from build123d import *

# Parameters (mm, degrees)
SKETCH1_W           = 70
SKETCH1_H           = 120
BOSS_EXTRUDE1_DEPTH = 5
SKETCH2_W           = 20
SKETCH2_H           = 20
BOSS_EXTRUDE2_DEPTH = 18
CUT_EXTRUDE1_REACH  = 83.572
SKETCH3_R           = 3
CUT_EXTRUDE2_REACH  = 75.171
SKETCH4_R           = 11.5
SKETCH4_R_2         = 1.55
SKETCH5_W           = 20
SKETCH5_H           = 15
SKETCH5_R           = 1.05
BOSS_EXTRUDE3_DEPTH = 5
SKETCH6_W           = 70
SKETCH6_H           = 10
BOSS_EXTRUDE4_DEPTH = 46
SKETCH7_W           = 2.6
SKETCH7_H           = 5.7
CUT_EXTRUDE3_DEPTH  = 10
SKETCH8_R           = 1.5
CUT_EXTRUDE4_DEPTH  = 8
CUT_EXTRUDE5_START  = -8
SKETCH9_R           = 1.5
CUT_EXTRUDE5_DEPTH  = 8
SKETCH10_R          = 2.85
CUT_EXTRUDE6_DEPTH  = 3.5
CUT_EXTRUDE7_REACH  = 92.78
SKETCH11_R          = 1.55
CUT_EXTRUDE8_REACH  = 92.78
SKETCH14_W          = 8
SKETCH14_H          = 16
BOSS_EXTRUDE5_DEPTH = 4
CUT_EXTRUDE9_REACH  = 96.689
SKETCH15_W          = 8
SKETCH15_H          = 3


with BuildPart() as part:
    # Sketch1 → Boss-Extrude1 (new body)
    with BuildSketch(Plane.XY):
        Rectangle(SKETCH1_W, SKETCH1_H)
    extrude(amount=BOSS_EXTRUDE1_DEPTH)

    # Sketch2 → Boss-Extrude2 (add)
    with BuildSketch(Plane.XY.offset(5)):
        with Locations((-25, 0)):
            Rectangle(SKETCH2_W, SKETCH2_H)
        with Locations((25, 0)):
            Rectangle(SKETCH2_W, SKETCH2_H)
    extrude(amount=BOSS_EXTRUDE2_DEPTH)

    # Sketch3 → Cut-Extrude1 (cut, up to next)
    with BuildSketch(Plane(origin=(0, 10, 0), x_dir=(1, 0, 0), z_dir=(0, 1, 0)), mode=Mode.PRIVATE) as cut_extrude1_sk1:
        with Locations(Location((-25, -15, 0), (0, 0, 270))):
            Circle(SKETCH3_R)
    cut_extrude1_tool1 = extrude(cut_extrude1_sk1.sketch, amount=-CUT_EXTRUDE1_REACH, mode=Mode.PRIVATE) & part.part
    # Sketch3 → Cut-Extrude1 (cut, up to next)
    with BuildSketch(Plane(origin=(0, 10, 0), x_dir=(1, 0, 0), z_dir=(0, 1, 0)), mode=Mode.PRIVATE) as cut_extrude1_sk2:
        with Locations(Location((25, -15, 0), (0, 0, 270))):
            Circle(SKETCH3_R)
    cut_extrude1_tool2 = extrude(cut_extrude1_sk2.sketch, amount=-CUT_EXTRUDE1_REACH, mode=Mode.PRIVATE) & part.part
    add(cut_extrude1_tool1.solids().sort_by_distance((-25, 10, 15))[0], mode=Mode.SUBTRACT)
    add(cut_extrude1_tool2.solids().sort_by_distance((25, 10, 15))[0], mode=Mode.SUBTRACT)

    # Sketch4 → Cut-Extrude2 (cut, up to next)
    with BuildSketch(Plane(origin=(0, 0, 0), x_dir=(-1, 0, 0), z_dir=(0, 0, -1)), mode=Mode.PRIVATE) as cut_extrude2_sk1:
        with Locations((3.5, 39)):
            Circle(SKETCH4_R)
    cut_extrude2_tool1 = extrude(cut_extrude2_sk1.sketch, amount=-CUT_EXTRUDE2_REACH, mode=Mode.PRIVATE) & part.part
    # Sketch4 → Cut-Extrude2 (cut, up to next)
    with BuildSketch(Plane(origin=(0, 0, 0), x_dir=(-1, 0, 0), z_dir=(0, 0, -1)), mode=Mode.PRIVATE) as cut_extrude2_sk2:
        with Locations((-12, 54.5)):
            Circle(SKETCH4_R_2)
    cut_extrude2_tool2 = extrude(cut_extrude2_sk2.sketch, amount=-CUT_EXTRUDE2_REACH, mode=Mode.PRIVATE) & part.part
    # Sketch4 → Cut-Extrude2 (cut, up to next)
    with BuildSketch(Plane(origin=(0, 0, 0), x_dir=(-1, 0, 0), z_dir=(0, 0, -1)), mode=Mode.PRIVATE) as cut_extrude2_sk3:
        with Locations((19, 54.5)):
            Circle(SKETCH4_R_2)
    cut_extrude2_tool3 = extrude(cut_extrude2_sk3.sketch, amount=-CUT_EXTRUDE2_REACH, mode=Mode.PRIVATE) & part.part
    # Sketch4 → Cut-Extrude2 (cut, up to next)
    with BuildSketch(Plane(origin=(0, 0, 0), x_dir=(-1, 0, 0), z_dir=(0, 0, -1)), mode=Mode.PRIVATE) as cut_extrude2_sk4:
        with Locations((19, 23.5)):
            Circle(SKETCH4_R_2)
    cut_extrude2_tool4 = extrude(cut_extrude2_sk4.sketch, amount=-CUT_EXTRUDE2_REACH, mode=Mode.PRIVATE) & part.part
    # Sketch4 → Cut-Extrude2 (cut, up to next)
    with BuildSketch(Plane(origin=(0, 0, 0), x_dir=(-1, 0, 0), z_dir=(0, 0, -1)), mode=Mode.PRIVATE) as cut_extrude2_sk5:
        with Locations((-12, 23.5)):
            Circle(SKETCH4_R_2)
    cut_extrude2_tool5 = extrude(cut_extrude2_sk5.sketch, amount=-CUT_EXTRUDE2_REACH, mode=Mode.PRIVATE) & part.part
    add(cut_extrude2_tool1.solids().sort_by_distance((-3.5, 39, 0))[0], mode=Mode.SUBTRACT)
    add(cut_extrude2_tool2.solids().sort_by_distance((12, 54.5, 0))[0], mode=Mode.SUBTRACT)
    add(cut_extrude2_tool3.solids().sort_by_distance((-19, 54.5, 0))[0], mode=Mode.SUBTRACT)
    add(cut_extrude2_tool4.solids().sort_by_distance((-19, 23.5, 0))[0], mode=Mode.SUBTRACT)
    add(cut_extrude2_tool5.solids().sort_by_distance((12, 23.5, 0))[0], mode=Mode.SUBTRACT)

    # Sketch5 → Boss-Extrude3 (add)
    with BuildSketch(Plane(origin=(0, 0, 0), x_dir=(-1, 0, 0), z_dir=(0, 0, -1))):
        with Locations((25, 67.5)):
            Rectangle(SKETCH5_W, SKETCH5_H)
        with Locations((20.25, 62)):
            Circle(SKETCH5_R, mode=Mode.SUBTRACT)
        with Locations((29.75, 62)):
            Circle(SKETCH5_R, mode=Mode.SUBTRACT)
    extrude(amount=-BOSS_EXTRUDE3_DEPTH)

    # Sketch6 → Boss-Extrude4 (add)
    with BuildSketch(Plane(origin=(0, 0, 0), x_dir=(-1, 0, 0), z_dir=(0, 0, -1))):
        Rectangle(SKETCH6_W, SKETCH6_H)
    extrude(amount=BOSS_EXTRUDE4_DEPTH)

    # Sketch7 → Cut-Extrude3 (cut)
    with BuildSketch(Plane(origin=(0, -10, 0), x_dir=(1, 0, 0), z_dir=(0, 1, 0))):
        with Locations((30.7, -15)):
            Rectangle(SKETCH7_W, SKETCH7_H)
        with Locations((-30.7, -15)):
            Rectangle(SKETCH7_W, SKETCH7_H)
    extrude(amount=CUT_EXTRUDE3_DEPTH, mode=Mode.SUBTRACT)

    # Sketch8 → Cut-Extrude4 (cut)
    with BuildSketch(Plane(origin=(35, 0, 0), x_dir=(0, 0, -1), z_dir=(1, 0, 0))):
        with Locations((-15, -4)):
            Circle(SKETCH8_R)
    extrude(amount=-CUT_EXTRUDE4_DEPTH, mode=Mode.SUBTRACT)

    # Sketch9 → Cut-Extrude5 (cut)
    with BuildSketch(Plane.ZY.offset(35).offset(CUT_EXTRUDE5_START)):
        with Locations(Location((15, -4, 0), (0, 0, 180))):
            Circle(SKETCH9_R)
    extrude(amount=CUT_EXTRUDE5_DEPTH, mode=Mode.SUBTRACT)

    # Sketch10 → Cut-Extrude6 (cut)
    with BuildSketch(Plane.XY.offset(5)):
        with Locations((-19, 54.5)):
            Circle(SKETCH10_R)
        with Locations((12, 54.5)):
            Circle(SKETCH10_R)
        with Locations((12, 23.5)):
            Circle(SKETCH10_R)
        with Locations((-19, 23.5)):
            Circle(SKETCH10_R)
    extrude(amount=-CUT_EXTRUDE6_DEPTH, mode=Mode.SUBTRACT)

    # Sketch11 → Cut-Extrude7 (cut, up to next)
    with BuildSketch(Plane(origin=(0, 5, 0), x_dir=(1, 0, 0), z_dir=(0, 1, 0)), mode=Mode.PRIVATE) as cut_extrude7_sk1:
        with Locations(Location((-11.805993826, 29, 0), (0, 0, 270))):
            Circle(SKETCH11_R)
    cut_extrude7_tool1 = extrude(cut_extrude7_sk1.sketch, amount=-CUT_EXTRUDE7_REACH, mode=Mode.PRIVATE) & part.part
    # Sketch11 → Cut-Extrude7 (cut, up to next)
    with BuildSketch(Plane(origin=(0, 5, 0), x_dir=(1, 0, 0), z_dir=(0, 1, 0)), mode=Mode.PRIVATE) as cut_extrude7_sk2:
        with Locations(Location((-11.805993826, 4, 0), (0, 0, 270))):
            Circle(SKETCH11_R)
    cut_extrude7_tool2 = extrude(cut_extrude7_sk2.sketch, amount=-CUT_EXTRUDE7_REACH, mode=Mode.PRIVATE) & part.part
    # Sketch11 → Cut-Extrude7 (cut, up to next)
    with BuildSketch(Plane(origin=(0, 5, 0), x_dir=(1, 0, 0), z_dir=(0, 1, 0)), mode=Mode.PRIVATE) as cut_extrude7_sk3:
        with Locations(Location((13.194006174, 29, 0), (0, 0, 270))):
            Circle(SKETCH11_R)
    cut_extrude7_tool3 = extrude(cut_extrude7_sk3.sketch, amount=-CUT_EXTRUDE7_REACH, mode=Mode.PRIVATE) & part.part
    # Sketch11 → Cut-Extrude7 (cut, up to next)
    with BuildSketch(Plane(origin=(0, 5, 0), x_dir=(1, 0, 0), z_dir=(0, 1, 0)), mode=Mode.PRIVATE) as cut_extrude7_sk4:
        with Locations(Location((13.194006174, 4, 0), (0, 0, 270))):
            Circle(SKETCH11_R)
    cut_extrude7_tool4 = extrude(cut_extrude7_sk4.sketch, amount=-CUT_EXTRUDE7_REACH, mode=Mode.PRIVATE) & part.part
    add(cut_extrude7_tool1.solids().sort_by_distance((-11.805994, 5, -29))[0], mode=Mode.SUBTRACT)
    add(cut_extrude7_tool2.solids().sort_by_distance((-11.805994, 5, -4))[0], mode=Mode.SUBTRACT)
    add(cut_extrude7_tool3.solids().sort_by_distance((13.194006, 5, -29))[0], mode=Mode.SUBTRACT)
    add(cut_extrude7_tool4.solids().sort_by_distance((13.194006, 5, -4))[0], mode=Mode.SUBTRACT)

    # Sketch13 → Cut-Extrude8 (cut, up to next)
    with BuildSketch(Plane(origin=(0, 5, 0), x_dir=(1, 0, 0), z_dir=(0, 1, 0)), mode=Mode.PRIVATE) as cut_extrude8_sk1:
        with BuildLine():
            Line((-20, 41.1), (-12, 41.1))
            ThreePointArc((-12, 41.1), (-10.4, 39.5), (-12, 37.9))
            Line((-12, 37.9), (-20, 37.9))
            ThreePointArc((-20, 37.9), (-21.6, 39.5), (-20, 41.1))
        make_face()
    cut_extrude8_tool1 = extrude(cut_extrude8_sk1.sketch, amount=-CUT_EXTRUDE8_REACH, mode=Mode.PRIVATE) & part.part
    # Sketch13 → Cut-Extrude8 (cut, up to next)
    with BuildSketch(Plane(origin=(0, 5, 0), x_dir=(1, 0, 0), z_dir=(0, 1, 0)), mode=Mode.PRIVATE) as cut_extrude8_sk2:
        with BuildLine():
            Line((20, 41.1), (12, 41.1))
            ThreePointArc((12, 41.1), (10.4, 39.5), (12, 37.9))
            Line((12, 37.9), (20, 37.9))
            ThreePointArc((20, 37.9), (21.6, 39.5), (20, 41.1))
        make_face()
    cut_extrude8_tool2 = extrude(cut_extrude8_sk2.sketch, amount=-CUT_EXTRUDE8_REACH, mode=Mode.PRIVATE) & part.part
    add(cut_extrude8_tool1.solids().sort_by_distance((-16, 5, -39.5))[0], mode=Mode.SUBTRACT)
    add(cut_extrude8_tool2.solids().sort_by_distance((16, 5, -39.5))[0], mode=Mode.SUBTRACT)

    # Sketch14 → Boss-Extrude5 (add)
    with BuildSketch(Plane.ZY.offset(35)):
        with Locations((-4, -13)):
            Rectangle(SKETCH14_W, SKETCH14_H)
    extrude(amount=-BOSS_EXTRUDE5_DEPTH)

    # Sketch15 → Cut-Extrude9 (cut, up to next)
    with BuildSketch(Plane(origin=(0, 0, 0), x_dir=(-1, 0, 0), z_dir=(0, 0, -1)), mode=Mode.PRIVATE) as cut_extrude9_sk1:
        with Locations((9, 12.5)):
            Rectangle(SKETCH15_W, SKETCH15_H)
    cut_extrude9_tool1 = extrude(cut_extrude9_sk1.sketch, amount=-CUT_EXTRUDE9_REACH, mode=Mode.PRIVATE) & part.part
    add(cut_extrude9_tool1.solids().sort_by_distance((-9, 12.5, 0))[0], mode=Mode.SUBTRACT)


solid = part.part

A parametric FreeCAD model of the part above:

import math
import FreeCAD as App
import Part
import Sketcher


def add_polygon(sketch, points):
    """Adds a closed chain of lines whose ends are joined by coincident constraints."""
    first, n = sketch.GeometryCount, len(points)
    for a, b in zip(points, points[1:] + points[:1]):
        sketch.addGeometry(Part.LineSegment(App.Vector(*a, 0), App.Vector(*b, 0)), False)
    for i in range(n):
        sketch.addConstraint(Sketcher.Constraint("Coincident", first + i, 2, first + (i + 1) % n, 1))

doc = App.newDocument("Part")
body = doc.addObject("PartDesign::Body", "Body")

sketch1 = body.newObject("Sketcher::SketchObject", "Sketch")
sketch1.AttachmentSupport = (doc.getObject("XY_Plane"), [""])
sketch1.MapMode = "FlatFace"
add_polygon(sketch1, [(-35, 60), (-35, -60), (35, -60), (35, 60)])
sketch1.addConstraint([
    Sketcher.Constraint("Vertical", 0),
    Sketcher.Constraint("Horizontal", 1),
    Sketcher.Constraint("Vertical", 2),
    Sketcher.Constraint("Horizontal", 3),
    Sketcher.Constraint("Symmetric", 0, 2, 2, 2, -1, 1),
    Sketcher.Constraint("DistanceX", 1, 1, 1, 2, 70.0),
    Sketcher.Constraint("DistanceY", 0, 2, 0, 1, 120.0),
])
pad1 = body.newObject("PartDesign::Pad", "Pad")
pad1.Profile = sketch1
pad1.Length = 5

sketch2 = body.newObject("Sketcher::SketchObject", "Sketch001")
sketch2.AttachmentSupport = (doc.getObject("XY_Plane"), [""])
sketch2.MapMode = "FlatFace"
sketch2.AttachmentOffset = App.Placement(App.Vector(0, 0, 5), App.Rotation())
add_polygon(sketch2, [(-35, 10), (-35, -10), (-15, -10), (-15, 10)])
add_polygon(sketch2, [(15, 10), (15, -10), (35, -10), (35, 10)])
sketch2.addConstraint([
    Sketcher.Constraint("Vertical", 0),
    Sketcher.Constraint("Horizontal", 1),
    Sketcher.Constraint("Vertical", 2),
    Sketcher.Constraint("Horizontal", 3),
    Sketcher.Constraint("Vertical", 4),
    Sketcher.Constraint("Horizontal", 5),
    Sketcher.Constraint("Vertical", 6),
    Sketcher.Constraint("Horizontal", 7),
    Sketcher.Constraint("Symmetric", 2, 2, 4, 2, -1, 1),
    Sketcher.Constraint("Symmetric", 0, 2, 6, 2, -1, 1),
    Sketcher.Constraint("Horizontal", 1, 2, 4, 2),
    Sketcher.Constraint("Equal", 7, 0),
    Sketcher.Constraint("DistanceX", 1, 1, 1, 2, 20.0),
    Sketcher.Constraint("DistanceX", 0, 2, -1, 1, 35.0),
])
pad2 = body.newObject("PartDesign::Pad", "Pad001")
pad2.Profile = sketch2
pad2.Length = 18

sketch3 = body.newObject("Sketcher::SketchObject", "Sketch002")
sketch3.AttachmentSupport = (doc.getObject("XZ_Plane"), [""])
sketch3.MapMode = "FlatFace"
sketch3.AttachmentOffset = App.Placement(App.Vector(0, 0, -10), App.Rotation())
sketch3.addGeometry(Part.Circle(App.Vector(-25, 15, 0), App.Vector(0, 0, 1), 3), False)
sketch3.addConstraint([
    Sketcher.Constraint("Diameter", 0, 6.0),
    Sketcher.Constraint("DistanceX", 0, 3, -1, 1, 25.0),
    Sketcher.Constraint("DistanceY", -1, 1, 0, 3, 15.0),
])
pocket1 = body.newObject("PartDesign::Pocket", "Pocket")
pocket1.Profile = sketch3
pocket1.Type = "UpToFirst"
pocket1.Reversed = True

sketch4 = body.newObject("Sketcher::SketchObject", "Sketch003")
sketch4.AttachmentSupport = (doc.getObject("XZ_Plane"), [""])
sketch4.MapMode = "FlatFace"
sketch4.AttachmentOffset = App.Placement(App.Vector(0, 0, -10), App.Rotation())
sketch4.addGeometry(Part.Circle(App.Vector(25, 15, 0), App.Vector(0, 0, 1), 3), False)
sketch4.addConstraint([
    Sketcher.Constraint("Diameter", 0, 6.0),
    Sketcher.Constraint("DistanceX", -1, 1, 0, 3, 25.0),
    Sketcher.Constraint("DistanceY", -1, 1, 0, 3, 15.0),
])
pocket2 = body.newObject("PartDesign::Pocket", "Pocket001")
pocket2.Profile = sketch4
pocket2.Type = "UpToFirst"
pocket2.Reversed = True

sketch5 = body.newObject("Sketcher::SketchObject", "Sketch004")
sketch5.AttachmentSupport = (doc.getObject("XY_Plane"), [""])
sketch5.MapMode = "FlatFace"
sketch5.addGeometry(Part.Circle(App.Vector(-3.5, 39, 0), App.Vector(0, 0, 1), 11.5), False)
sketch5.addConstraint([
    Sketcher.Constraint("Diameter", 0, 23.0),
    Sketcher.Constraint("DistanceY", -1, 1, 0, 3, 39.0),
    Sketcher.Constraint("DistanceX", 0, 3, -1, 1, 3.5),
])
pocket3 = body.newObject("PartDesign::Pocket", "Pocket002")
pocket3.Profile = sketch5
pocket3.Type = "UpToFirst"
pocket3.Reversed = True

sketch6 = body.newObject("Sketcher::SketchObject", "Sketch005")
sketch6.AttachmentSupport = (doc.getObject("XY_Plane"), [""])
sketch6.MapMode = "FlatFace"
sketch6.addGeometry(Part.Circle(App.Vector(12, 54.5, 0), App.Vector(0, 0, 1), 1.55), False)
sketch6.addConstraint([
    Sketcher.Constraint("Diameter", 0, 3.1),
    Sketcher.Constraint("DistanceX", -1, 1, 0, 3, 12.0),
    Sketcher.Constraint("DistanceY", -1, 1, 0, 3, 54.5),
])
pocket4 = body.newObject("PartDesign::Pocket", "Pocket003")
pocket4.Profile = sketch6
pocket4.Type = "UpToFirst"
pocket4.Reversed = True

sketch7 = body.newObject("Sketcher::SketchObject", "Sketch006")
sketch7.AttachmentSupport = (doc.getObject("XY_Plane"), [""])
sketch7.MapMode = "FlatFace"
sketch7.addGeometry(Part.Circle(App.Vector(-19, 54.5, 0), App.Vector(0, 0, 1), 1.55), False)
sketch7.addConstraint([
    Sketcher.Constraint("Diameter", 0, 3.1),
    Sketcher.Constraint("DistanceX", 0, 3, -1, 1, 19.0),
    Sketcher.Constraint("DistanceY", -1, 1, 0, 3, 54.5),
])
pocket5 = body.newObject("PartDesign::Pocket", "Pocket004")
pocket5.Profile = sketch7
pocket5.Type = "UpToFirst"
pocket5.Reversed = True

sketch8 = body.newObject("Sketcher::SketchObject", "Sketch007")
sketch8.AttachmentSupport = (doc.getObject("XY_Plane"), [""])
sketch8.MapMode = "FlatFace"
sketch8.addGeometry(Part.Circle(App.Vector(-19, 23.5, 0), App.Vector(0, 0, 1), 1.55), False)
sketch8.addConstraint([
    Sketcher.Constraint("Diameter", 0, 3.1),
    Sketcher.Constraint("DistanceX", 0, 3, -1, 1, 19.0),
    Sketcher.Constraint("DistanceY", -1, 1, 0, 3, 23.5),
])
pocket6 = body.newObject("PartDesign::Pocket", "Pocket005")
pocket6.Profile = sketch8
pocket6.Type = "UpToFirst"
pocket6.Reversed = True

sketch9 = body.newObject("Sketcher::SketchObject", "Sketch008")
sketch9.AttachmentSupport = (doc.getObject("XY_Plane"), [""])
sketch9.MapMode = "FlatFace"
sketch9.addGeometry(Part.Circle(App.Vector(12, 23.5, 0), App.Vector(0, 0, 1), 1.55), False)
sketch9.addConstraint([
    Sketcher.Constraint("Diameter", 0, 3.1),
    Sketcher.Constraint("DistanceX", -1, 1, 0, 3, 12.0),
    Sketcher.Constraint("DistanceY", -1, 1, 0, 3, 23.5),
])
pocket7 = body.newObject("PartDesign::Pocket", "Pocket006")
pocket7.Profile = sketch9
pocket7.Type = "UpToFirst"
pocket7.Reversed = True

sketch10 = body.newObject("Sketcher::SketchObject", "Sketch009")
sketch10.AttachmentSupport = (doc.getObject("XY_Plane"), [""])
sketch10.MapMode = "FlatFace"
add_polygon(sketch10, [(-15, 75), (-15, 60), (-35, 60), (-35, 75)])
sketch10.addGeometry(Part.Circle(App.Vector(-20.25, 62, 0), App.Vector(0, 0, 1), 1.05), False)
sketch10.addGeometry(Part.Circle(App.Vector(-29.75, 62, 0), App.Vector(0, 0, 1), 1.05), False)
sketch10.addConstraint([
    Sketcher.Constraint("Vertical", 0),
    Sketcher.Constraint("Horizontal", 1),
    Sketcher.Constraint("Vertical", 2),
    Sketcher.Constraint("Horizontal", 3),
    Sketcher.Constraint("Equal", 4, 5),
    Sketcher.Constraint("Horizontal", 4, 3, 5, 3),
    Sketcher.Constraint("Diameter", 4, 2.1),
    Sketcher.Constraint("DistanceX", 1, 2, 1, 1, 20.0),
    Sketcher.Constraint("DistanceY", 0, 2, 0, 1, 15.0),
    Sketcher.Constraint("DistanceY", -1, 1, 4, 3, 62.0),
    Sketcher.Constraint("DistanceX", 0, 2, -1, 1, 15.0),
    Sketcher.Constraint("DistanceY", -1, 1, 0, 2, 60.0),
    Sketcher.Constraint("DistanceX", 5, 3, 4, 3, 9.5),
    Sketcher.Constraint("DistanceX", 4, 3, -1, 1, 20.25),
])
pad3 = body.newObject("PartDesign::Pad", "Pad002")
pad3.Profile = sketch10
pad3.Length = 5

sketch11 = body.newObject("Sketcher::SketchObject", "Sketch010")
sketch11.AttachmentSupport = (doc.getObject("XY_Plane"), [""])
sketch11.MapMode = "FlatFace"
add_polygon(sketch11, [(35, 5), (35, -5), (-35, -5), (-35, 5)])
sketch11.addConstraint([
    Sketcher.Constraint("Vertical", 0),
    Sketcher.Constraint("Horizontal", 1),
    Sketcher.Constraint("Vertical", 2),
    Sketcher.Constraint("Horizontal", 3),
    Sketcher.Constraint("Symmetric", 0, 2, 2, 2, -1, 1),
    Sketcher.Constraint("DistanceX", 1, 2, 1, 1, 70.0),
    Sketcher.Constraint("DistanceY", 0, 2, 0, 1, 10.0),
])
pad4 = body.newObject("PartDesign::Pad", "Pad003")
pad4.Profile = sketch11
pad4.Length = 46
pad4.Reversed = True

sketch12 = body.newObject("Sketcher::SketchObject", "Sketch011")
sketch12.AttachmentSupport = (doc.getObject("XZ_Plane"), [""])
sketch12.MapMode = "FlatFace"
sketch12.AttachmentOffset = App.Placement(App.Vector(0, 0, 10), App.Rotation())
add_polygon(sketch12, [(29.4, 12.15), (29.4, 17.85), (32, 17.85), (32, 12.15)])
add_polygon(sketch12, [(-32, 12.15), (-32, 17.85), (-29.4, 17.85), (-29.4, 12.15)])
sketch12.addConstraint([
    Sketcher.Constraint("Vertical", 0),
    Sketcher.Constraint("Horizontal", 1),
    Sketcher.Constraint("Vertical", 2),
    Sketcher.Constraint("Horizontal", 3),
    Sketcher.Constraint("Vertical", 4),
    Sketcher.Constraint("Horizontal", 5),
    Sketcher.Constraint("Vertical", 6),
    Sketcher.Constraint("Horizontal", 7),
    Sketcher.Constraint("Symmetric", 1, 2, 4, 2, -2),
    Sketcher.Constraint("Symmetric", 3, 2, 6, 2, -2),
    Sketcher.Constraint("DistanceX", 1, 1, 1, 2, 2.6),
    Sketcher.Constraint("DistanceY", 0, 1, 0, 2, 5.7),
    Sketcher.Constraint("DistanceX", -1, 1, 1, 2, 32.0),
    Sketcher.Constraint("DistanceY", -1, 1, 0, 2, 17.85),
])
pocket8 = body.newObject("PartDesign::Pocket", "Pocket007")
pocket8.Profile = sketch12
pocket8.Length = 10

sketch13 = body.newObject("Sketcher::SketchObject", "Sketch012")
sketch13.AttachmentSupport = (doc.getObject("YZ_Plane"), [""])
sketch13.MapMode = "FlatFace"
sketch13.AttachmentOffset = App.Placement(App.Vector(0, 0, 35), App.Rotation())
sketch13.addGeometry(Part.Circle(App.Vector(-4, 15, 0), App.Vector(0, 0, 1), 1.5), False)
sketch13.addConstraint([
    Sketcher.Constraint("Diameter", 0, 3.0),
    Sketcher.Constraint("DistanceX", 0, 3, -1, 1, 4.0),
    Sketcher.Constraint("DistanceY", -1, 1, 0, 3, 15.0),
])
pocket9 = body.newObject("PartDesign::Pocket", "Pocket008")
pocket9.Profile = sketch13
pocket9.Length = 8

sketch14 = body.newObject("Sketcher::SketchObject", "Sketch013")
sketch14.AttachmentSupport = (doc.getObject("YZ_Plane"), [""])
sketch14.MapMode = "FlatFace"
sketch14.AttachmentOffset = App.Placement(App.Vector(0, 0, -27), App.Rotation())
sketch14.addGeometry(Part.Circle(App.Vector(-4, 15, 0), App.Vector(0, 0, 1), 1.5), False)
sketch14.addConstraint([
    Sketcher.Constraint("Diameter", 0, 3.0),
    Sketcher.Constraint("DistanceX", 0, 3, -1, 1, 4.0),
    Sketcher.Constraint("DistanceY", -1, 1, 0, 3, 15.0),
])
pocket10 = body.newObject("PartDesign::Pocket", "Pocket009")
pocket10.Profile = sketch14
pocket10.Length = 8

sketch15 = body.newObject("Sketcher::SketchObject", "Sketch014")
sketch15.AttachmentSupport = (doc.getObject("XY_Plane"), [""])
sketch15.MapMode = "FlatFace"
sketch15.AttachmentOffset = App.Placement(App.Vector(0, 0, 5), App.Rotation())
sketch15.addGeometry([
    Part.Circle(App.Vector(-19, 54.5, 0), App.Vector(0, 0, 1), 2.85),
    Part.Circle(App.Vector(12, 54.5, 0), App.Vector(0, 0, 1), 2.85),
    Part.Circle(App.Vector(12, 23.5, 0), App.Vector(0, 0, 1), 2.85),
    Part.Circle(App.Vector(-19, 23.5, 0), App.Vector(0, 0, 1), 2.85),
], False)
sketch15.addConstraint([
    Sketcher.Constraint("Equal", 0, 1),
    Sketcher.Constraint("Equal", 1, 2),
    Sketcher.Constraint("Equal", 2, 3),
    Sketcher.Constraint("Horizontal", 0, 3, 1, 3),
    Sketcher.Constraint("Horizontal", 2, 3, 3, 3),
    Sketcher.Constraint("Vertical", 1, 3, 2, 3),
    Sketcher.Constraint("Vertical", 0, 3, 3, 3),
    Sketcher.Constraint("Diameter", 0, 5.7),
    Sketcher.Constraint("DistanceX", 0, 3, -1, 1, 19.0),
    Sketcher.Constraint("DistanceX", -1, 1, 1, 3, 12.0),
    Sketcher.Constraint("DistanceY", 2, 3, 1, 3, 31.0),
    Sketcher.Constraint("DistanceY", -1, 1, 0, 3, 54.5),
])
pocket11 = body.newObject("PartDesign::Pocket", "Pocket010")
pocket11.Profile = sketch15
pocket11.Length = 3.5

sketch16 = body.newObject("Sketcher::SketchObject", "Sketch015")
sketch16.AttachmentSupport = (doc.getObject("XZ_Plane"), [""])
sketch16.MapMode = "FlatFace"
sketch16.AttachmentOffset = App.Placement(App.Vector(0, 0, -5), App.Rotation())
sketch16.addGeometry(Part.Circle(App.Vector(-11.805994, -29, 0), App.Vector(0, 0, 1), 1.55), False)
sketch16.addConstraint([
    Sketcher.Constraint("Diameter", 0, 3.1),
    Sketcher.Constraint("DistanceY", 0, 3, -1, 1, 29.0),
    Sketcher.Constraint("DistanceX", 0, 3, -1, 1, 11.805994),
])
pocket12 = body.newObject("PartDesign::Pocket", "Pocket011")
pocket12.Profile = sketch16
pocket12.Type = "UpToFirst"
pocket12.Reversed = True

sketch17 = body.newObject("Sketcher::SketchObject", "Sketch016")
sketch17.AttachmentSupport = (doc.getObject("XZ_Plane"), [""])
sketch17.MapMode = "FlatFace"
sketch17.AttachmentOffset = App.Placement(App.Vector(0, 0, -5), App.Rotation())
sketch17.addGeometry(Part.Circle(App.Vector(-11.805994, -4, 0), App.Vector(0, 0, 1), 1.55), False)
sketch17.addConstraint([
    Sketcher.Constraint("Diameter", 0, 3.1),
    Sketcher.Constraint("DistanceY", 0, 3, -1, 1, 4.0),
    Sketcher.Constraint("DistanceX", 0, 3, -1, 1, 11.805994),
])
pocket13 = body.newObject("PartDesign::Pocket", "Pocket012")
pocket13.Profile = sketch17
pocket13.Type = "UpToFirst"
pocket13.Reversed = True

sketch18 = body.newObject("Sketcher::SketchObject", "Sketch017")
sketch18.AttachmentSupport = (doc.getObject("XZ_Plane"), [""])
sketch18.MapMode = "FlatFace"
sketch18.AttachmentOffset = App.Placement(App.Vector(0, 0, -5), App.Rotation())
sketch18.addGeometry(Part.Circle(App.Vector(13.194006, -29, 0), App.Vector(0, 0, 1), 1.55), False)
sketch18.addConstraint([
    Sketcher.Constraint("Diameter", 0, 3.1),
    Sketcher.Constraint("DistanceY", 0, 3, -1, 1, 29.0),
    Sketcher.Constraint("DistanceX", -1, 1, 0, 3, 13.194006),
])
pocket14 = body.newObject("PartDesign::Pocket", "Pocket013")
pocket14.Profile = sketch18
pocket14.Type = "UpToFirst"
pocket14.Reversed = True

sketch19 = body.newObject("Sketcher::SketchObject", "Sketch018")
sketch19.AttachmentSupport = (doc.getObject("XZ_Plane"), [""])
sketch19.MapMode = "FlatFace"
sketch19.AttachmentOffset = App.Placement(App.Vector(0, 0, -5), App.Rotation())
sketch19.addGeometry(Part.Circle(App.Vector(13.194006, -4, 0), App.Vector(0, 0, 1), 1.55), False)
sketch19.addConstraint([
    Sketcher.Constraint("Diameter", 0, 3.1),
    Sketcher.Constraint("DistanceY", 0, 3, -1, 1, 4.0),
    Sketcher.Constraint("DistanceX", -1, 1, 0, 3, 13.194006),
])
pocket15 = body.newObject("PartDesign::Pocket", "Pocket014")
pocket15.Profile = sketch19
pocket15.Type = "UpToFirst"
pocket15.Reversed = True

sketch20 = body.newObject("Sketcher::SketchObject", "Sketch019")
sketch20.AttachmentSupport = (doc.getObject("XZ_Plane"), [""])
sketch20.MapMode = "FlatFace"
sketch20.AttachmentOffset = App.Placement(App.Vector(0, 0, -5), App.Rotation())
sketch20.addGeometry([
    Part.LineSegment(App.Vector(-12, -41.1, 0), App.Vector(-20, -41.1, 0)),
    Part.ArcOfCircle(Part.Circle(App.Vector(-20, -39.5, 0), App.Vector(0, 0, 1), 1.6), math.radians(90), math.radians(270)),
    Part.LineSegment(App.Vector(-20, -37.9, 0), App.Vector(-12, -37.9, 0)),
    Part.ArcOfCircle(Part.Circle(App.Vector(-12, -39.5, 0), App.Vector(0, 0, 1), 1.6), math.radians(-90), math.radians(90)),
], False)
sketch20.addConstraint([
    Sketcher.Constraint("Tangent", 0, 2, 1, 2),
    Sketcher.Constraint("Tangent", 1, 1, 2, 1),
    Sketcher.Constraint("Tangent", 2, 2, 3, 2),
    Sketcher.Constraint("Tangent", 3, 1, 0, 1),
    Sketcher.Constraint("Horizontal", 0),
    Sketcher.Constraint("Horizontal", 2),
    Sketcher.Constraint("Radius", 1, 1.6),
    Sketcher.Constraint("DistanceX", 0, 2, 0, 1, 8.0),
    Sketcher.Constraint("DistanceX", 1, 3, -1, 1, 20.0),
    Sketcher.Constraint("DistanceY", 1, 3, -1, 1, 39.5),
])
pocket16 = body.newObject("PartDesign::Pocket", "Pocket015")
pocket16.Profile = sketch20
pocket16.Type = "UpToFirst"
pocket16.Reversed = True

sketch21 = body.newObject("Sketcher::SketchObject", "Sketch020")
sketch21.AttachmentSupport = (doc.getObject("XZ_Plane"), [""])
sketch21.MapMode = "FlatFace"
sketch21.AttachmentOffset = App.Placement(App.Vector(0, 0, -5), App.Rotation())
sketch21.addGeometry([
    Part.LineSegment(App.Vector(20, -41.1, 0), App.Vector(12, -41.1, 0)),
    Part.ArcOfCircle(Part.Circle(App.Vector(12, -39.5, 0), App.Vector(0, 0, 1), 1.6), math.radians(90), math.radians(270)),
    Part.LineSegment(App.Vector(12, -37.9, 0), App.Vector(20, -37.9, 0)),
    Part.ArcOfCircle(Part.Circle(App.Vector(20, -39.5, 0), App.Vector(0, 0, 1), 1.6), math.radians(-90), math.radians(90)),
], False)
sketch21.addConstraint([
    Sketcher.Constraint("Tangent", 0, 2, 1, 2),
    Sketcher.Constraint("Tangent", 1, 1, 2, 1),
    Sketcher.Constraint("Tangent", 2, 2, 3, 2),
    Sketcher.Constraint("Tangent", 3, 1, 0, 1),
    Sketcher.Constraint("Horizontal", 0),
    Sketcher.Constraint("Horizontal", 2),
    Sketcher.Constraint("Radius", 1, 1.6),
    Sketcher.Constraint("DistanceX", 0, 2, 0, 1, 8.0),
    Sketcher.Constraint("DistanceX", -1, 1, 1, 3, 12.0),
    Sketcher.Constraint("DistanceY", 1, 3, -1, 1, 39.5),
])
pocket17 = body.newObject("PartDesign::Pocket", "Pocket016")
pocket17.Profile = sketch21
pocket17.Type = "UpToFirst"
pocket17.Reversed = True

sketch22 = body.newObject("Sketcher::SketchObject", "Sketch021")
sketch22.AttachmentSupport = (doc.getObject("YZ_Plane"), [""])
sketch22.MapMode = "FlatFace"
sketch22.AttachmentOffset = App.Placement(App.Vector(0, 0, -35), App.Rotation())
add_polygon(sketch22, [(-5, -8), (-21, -8), (-21, 0), (-5, 0)])
sketch22.addConstraint([
    Sketcher.Constraint("Horizontal", 0),
    Sketcher.Constraint("Vertical", 1),
    Sketcher.Constraint("Horizontal", 2),
    Sketcher.Constraint("Vertical", 3),
    Sketcher.Constraint("PointOnObject", 1, 2, -1),
    Sketcher.Constraint("DistanceX", 0, 2, 0, 1, 16.0),
    Sketcher.Constraint("DistanceY", 1, 1, 1, 2, 8.0),
    Sketcher.Constraint("DistanceX", 0, 2, -1, 1, 21.0),
])
pad5 = body.newObject("PartDesign::Pad", "Pad004")
pad5.Profile = sketch22
pad5.Length = 4

sketch23 = body.newObject("Sketcher::SketchObject", "Sketch022")
sketch23.AttachmentSupport = (doc.getObject("XY_Plane"), [""])
sketch23.MapMode = "FlatFace"
add_polygon(sketch23, [(-5, 14), (-5, 11), (-13, 11), (-13, 14)])
sketch23.addConstraint([
    Sketcher.Constraint("Vertical", 0),
    Sketcher.Constraint("Horizontal", 1),
    Sketcher.Constraint("Vertical", 2),
    Sketcher.Constraint("Horizontal", 3),
    Sketcher.Constraint("DistanceX", 1, 2, 1, 1, 8.0),
    Sketcher.Constraint("DistanceY", 0, 2, 0, 1, 3.0),
    Sketcher.Constraint("DistanceX", 0, 2, -1, 1, 5.0),
    Sketcher.Constraint("DistanceY", -1, 1, 0, 2, 11.0),
])
pocket18 = body.newObject("PartDesign::Pocket", "Pocket017")
pocket18.Profile = sketch23
pocket18.Type = "UpToFirst"
pocket18.Reversed = True

doc.recompute()
